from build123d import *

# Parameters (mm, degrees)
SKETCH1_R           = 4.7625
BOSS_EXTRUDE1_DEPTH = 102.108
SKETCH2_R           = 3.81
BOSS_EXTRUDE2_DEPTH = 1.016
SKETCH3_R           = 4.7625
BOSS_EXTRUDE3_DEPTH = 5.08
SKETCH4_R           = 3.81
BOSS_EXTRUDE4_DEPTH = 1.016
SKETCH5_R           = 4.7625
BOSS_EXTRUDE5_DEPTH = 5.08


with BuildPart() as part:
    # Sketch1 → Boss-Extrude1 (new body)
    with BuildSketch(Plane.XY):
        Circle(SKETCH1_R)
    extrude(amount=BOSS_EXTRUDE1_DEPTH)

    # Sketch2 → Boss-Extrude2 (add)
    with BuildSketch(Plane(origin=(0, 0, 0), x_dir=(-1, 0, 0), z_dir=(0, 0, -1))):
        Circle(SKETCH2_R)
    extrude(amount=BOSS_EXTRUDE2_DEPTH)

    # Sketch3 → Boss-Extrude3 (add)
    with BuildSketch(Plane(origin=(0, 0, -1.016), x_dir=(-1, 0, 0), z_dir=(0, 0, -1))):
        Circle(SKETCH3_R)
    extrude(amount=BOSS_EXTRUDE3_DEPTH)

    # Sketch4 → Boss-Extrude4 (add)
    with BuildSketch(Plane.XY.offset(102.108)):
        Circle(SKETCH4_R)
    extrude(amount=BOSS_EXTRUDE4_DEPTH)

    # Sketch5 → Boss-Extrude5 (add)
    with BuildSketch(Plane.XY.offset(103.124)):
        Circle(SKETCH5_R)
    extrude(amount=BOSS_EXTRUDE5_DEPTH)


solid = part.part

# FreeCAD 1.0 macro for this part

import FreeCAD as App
import Part
import Sketcher
Q = App.Units.Quantity

doc = App.newDocument("Part")
body = doc.addObject("PartDesign::Body", "Body")

# Sketch on XY plane
sketch1 = doc.addObject("Sketcher::SketchObject", "Sketch")
body.addObject(sketch1)
sketch1.AttachmentSupport = (doc.XY_Plane, [""])
sketch1.MapMode = "FlatFace"
sketch1.addGeometry(Part.Circle(App.Vector(0, 0, 0), App.Vector(0, 0, 1), 4.8), False)
sketch1.addConstraint([
    Sketcher.Constraint("Coincident", 0, 3, -1, 1),
    Sketcher.Constraint("Diameter", 0, Q("0.375 in")),
])
pad1 = doc.addObject("PartDesign::Pad", "Pad")
body.addObject(pad1)
pad1.Profile = sketch1
pad1.Length = Q("4.02 in")

# Sketch on XY plane
sketch2 = doc.addObject("Sketcher::SketchObject", "Sketch001")
body.addObject(sketch2)
sketch2.AttachmentSupport = (doc.XY_Plane, [""])
sketch2.MapMode = "FlatFace"
sketch2.addGeometry(Part.Circle(App.Vector(0, 0, 0), App.Vector(0, 0, 1), 3.8), False)
sketch2.addConstraint([
    Sketcher.Constraint("Coincident", 0, 3, -1, 1),
    Sketcher.Constraint("Diameter", 0, Q("0.3 in")),
])
pad2 = doc.addObject("PartDesign::Pad", "Pad001")
body.addObject(pad2)
pad2.Profile = sketch2
pad2.Length = Q("0.04 in")
pad2.Reversed = True

# Sketch on XY plane
sketch3 = doc.addObject("Sketcher::SketchObject", "Sketch002")
body.addObject(sketch3)
sketch3.AttachmentSupport = (doc.XY_Plane, [""])
sketch3.MapMode = "FlatFace"
sketch3.AttachmentOffset = App.Placement(App.Vector(0, 0, -0.04 * 25.4), App.Rotation())
sketch3.addGeometry(Part.Circle(App.Vector(0, 0, 0), App.Vector(0, 0, 1), 4.8), False)
sketch3.addConstraint([
    Sketcher.Constraint("Coincident", 0, 3, -1, 1),
    Sketcher.Constraint("Diameter", 0, Q("0.375 in")),
])
pad3 = doc.addObject("PartDesign::Pad", "Pad002")
body.addObject(pad3)
pad3.Profile = sketch3
pad3.Length = Q("0.2 in")
pad3.Reversed = True

# Sketch on XY plane
sketch4 = doc.addObject("Sketcher::SketchObject", "Sketch003")
body.addObject(sketch4)
sketch4.AttachmentSupport = (doc.XY_Plane, [""])
sketch4.MapMode = "FlatFace"
sketch4.AttachmentOffset = App.Placement(App.Vector(0, 0, 4.02 * 25.4), App.Rotation())
sketch4.addGeometry(Part.Circle(App.Vector(0, 0, 0), App.Vector(0, 0, 1), 3.8), False)
sketch4.addConstraint([
    Sketcher.Constraint("Coincident", 0, 3, -1, 1),
    Sketcher.Constraint("Diameter", 0, Q("0.3 in")),
])
pad4 = doc.addObject("PartDesign::Pad", "Pad003")
body.addObject(pad4)
pad4.Profile = sketch4
pad4.Length = Q("0.04 in")

# Sketch on XY plane
sketch5 = doc.addObject("Sketcher::SketchObject", "Sketch004")
body.addObject(sketch5)
sketch5.AttachmentSupport = (doc.XY_Plane, [""])
sketch5.MapMode = "FlatFace"
sketch5.AttachmentOffset = App.Placement(App.Vector(0, 0, 4.06 * 25.4), App.Rotation())
sketch5.addGeometry(Part.Circle(App.Vector(0, 0, 0), App.Vector(0, 0, 1), 4.8), False)
sketch5.addConstraint([
    Sketcher.Constraint("Coincident", 0, 3, -1, 1),
    Sketcher.Constraint("Diameter", 0, Q("0.375 in")),
])
pad5 = doc.addObject("PartDesign::Pad", "Pad004")
body.addObject(pad5)
pad5.Profile = sketch5
pad5.Length = Q("0.2 in")

doc.recompute()
